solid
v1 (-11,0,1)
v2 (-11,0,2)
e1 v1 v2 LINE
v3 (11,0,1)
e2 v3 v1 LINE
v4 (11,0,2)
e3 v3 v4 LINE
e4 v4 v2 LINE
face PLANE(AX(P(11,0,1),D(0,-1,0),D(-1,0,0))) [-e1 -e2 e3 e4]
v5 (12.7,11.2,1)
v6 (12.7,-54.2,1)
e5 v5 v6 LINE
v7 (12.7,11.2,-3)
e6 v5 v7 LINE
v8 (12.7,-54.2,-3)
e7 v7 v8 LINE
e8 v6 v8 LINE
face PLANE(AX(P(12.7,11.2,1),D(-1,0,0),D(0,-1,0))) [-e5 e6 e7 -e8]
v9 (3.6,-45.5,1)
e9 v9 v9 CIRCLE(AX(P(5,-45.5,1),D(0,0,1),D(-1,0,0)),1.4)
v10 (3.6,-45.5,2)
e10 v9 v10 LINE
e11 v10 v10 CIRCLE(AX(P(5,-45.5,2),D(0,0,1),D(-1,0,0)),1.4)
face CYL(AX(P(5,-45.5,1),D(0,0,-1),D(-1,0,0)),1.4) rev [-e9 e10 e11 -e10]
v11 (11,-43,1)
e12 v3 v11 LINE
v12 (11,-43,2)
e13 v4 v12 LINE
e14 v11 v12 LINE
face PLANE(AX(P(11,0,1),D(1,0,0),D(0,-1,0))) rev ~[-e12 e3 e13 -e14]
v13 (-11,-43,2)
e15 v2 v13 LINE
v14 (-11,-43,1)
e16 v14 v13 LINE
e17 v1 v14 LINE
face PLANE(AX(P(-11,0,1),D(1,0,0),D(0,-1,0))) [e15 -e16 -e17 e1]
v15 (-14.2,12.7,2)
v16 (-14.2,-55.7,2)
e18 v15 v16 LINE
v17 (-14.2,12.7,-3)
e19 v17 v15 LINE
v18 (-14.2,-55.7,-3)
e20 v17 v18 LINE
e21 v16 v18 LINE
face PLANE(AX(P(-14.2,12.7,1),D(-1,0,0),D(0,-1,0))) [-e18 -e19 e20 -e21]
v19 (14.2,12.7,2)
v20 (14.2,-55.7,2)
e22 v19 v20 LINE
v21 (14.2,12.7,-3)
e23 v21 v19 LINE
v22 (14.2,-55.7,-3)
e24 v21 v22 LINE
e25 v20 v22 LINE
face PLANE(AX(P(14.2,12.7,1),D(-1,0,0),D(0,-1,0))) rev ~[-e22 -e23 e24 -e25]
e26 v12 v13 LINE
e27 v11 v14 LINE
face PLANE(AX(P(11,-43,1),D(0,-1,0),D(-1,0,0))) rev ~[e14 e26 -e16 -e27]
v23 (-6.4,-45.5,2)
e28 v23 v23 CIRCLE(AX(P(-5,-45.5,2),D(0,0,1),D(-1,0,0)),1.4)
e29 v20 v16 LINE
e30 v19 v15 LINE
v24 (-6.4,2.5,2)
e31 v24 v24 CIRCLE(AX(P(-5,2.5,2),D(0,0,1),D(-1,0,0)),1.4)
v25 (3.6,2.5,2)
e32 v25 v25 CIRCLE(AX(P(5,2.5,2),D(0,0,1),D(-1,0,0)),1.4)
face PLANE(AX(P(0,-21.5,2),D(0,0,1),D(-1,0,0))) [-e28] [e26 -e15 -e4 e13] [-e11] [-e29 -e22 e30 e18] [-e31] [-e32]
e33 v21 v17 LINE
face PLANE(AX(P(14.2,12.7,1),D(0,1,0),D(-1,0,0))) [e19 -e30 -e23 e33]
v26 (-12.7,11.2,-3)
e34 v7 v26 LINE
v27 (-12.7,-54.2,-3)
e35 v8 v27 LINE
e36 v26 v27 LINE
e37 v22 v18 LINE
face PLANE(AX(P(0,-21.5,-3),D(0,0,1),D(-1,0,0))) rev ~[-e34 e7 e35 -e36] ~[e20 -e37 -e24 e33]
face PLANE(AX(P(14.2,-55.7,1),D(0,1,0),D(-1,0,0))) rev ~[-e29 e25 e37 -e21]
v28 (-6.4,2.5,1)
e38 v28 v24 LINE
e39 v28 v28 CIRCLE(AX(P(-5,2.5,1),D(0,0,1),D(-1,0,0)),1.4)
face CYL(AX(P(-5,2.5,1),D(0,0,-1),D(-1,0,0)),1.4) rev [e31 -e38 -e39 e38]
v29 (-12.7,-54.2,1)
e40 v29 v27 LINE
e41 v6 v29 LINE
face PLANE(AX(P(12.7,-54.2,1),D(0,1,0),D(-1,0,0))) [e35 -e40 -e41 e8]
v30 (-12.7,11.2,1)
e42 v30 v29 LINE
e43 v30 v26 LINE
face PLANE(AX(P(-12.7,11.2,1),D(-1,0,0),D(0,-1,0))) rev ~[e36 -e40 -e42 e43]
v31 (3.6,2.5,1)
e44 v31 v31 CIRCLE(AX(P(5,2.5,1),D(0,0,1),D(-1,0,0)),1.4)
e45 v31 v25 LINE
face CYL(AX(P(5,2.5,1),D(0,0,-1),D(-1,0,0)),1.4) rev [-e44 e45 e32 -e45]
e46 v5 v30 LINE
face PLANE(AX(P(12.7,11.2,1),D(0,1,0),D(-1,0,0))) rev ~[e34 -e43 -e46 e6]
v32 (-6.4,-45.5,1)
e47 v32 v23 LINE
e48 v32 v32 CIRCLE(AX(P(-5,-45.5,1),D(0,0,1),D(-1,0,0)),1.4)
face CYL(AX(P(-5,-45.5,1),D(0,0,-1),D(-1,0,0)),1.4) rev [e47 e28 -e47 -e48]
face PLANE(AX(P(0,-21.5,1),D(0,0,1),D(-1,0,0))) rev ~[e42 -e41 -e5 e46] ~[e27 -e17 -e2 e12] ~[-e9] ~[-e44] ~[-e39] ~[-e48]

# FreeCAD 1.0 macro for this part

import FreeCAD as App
import Part
import Sketcher


def add_polygon(sketch, points):
    """Adds a closed chain of lines whose ends are joined by coincident constraints."""
    first, n = sketch.GeometryCount, len(points)
    for a, b in zip(points, points[1:] + points[:1]):
        sketch.addGeometry(Part.LineSegment(App.Vector(*a, 0), App.Vector(*b, 0)), False)
    for i in range(n):
        sketch.addConstraint(Sketcher.Constraint("Coincident", first + i, 2, first + (i + 1) % n, 1))

doc = App.newDocument("Part")
params = doc.addObject("Spreadsheet::Sheet", "Params")
for row, (alias, value) in enumerate([
    ("sketch1_diameter", "2.8 mm"),
    ("pad1_length", "10 mm"),
    ("sketch2_width", "28.4 mm"),
    ("sketch2_width2", "25.4 mm"),
    ("sketch2_height", "68.4 mm"),
    ("sketch2_height2", "65.4 mm"),
    ("pad2_length", "4 mm"),
    ("sketch3_diameter", "2.8 mm"),
    ("sketch3_width", "22 mm"),
    ("sketch3_height", "43 mm"),
    ("sketch3_width2", "28.4 mm"),
    ("sketch3_height2", "68.4 mm"),
    ("pad3_length", "1 mm"),
], start=1):
    params.set(f"A{row}", alias)
    params.set(f"B{row}", "=" + value)
    params.setAlias(f"B{row}", alias)

body = doc.addObject("PartDesign::Body", "Body")

# Sketch on XY plane
sketch1 = body.newObject("Sketcher::SketchObject", "Sketch")
sketch1.AttachmentSupport = (doc.getObject("XY_Plane"), [""])
sketch1.MapMode = "FlatFace"
sketch1.AttachmentOffset = App.Placement(App.Vector(0, 0, -5), App.Rotation())
sketch1.addGeometry(Part.Circle(App.Vector(-5, 2.5, 0), App.Vector(0, 0, 1), 1.4), False)
sketch1.addConstraint(Sketcher.Constraint("Diameter", 0, 2.8))
sketch1.addConstraint(Sketcher.Constraint("DistanceX", 0, 3, -1, 1, 5.0))
sketch1.addConstraint(Sketcher.Constraint("DistanceY", -1, 1, 0, 3, 2.5))
sketch1.setExpression("Constraints[0]", "Params.sketch1_diameter")
pad1 = body.newObject("PartDesign::Pad", "Pad")
pad1.Profile = sketch1
pad1.setExpression("Length", "Params.pad1_length")
body2 = doc.addObject("PartDesign::Body", "Body001")

# Sketch on XY plane
sketch2 = body2.newObject("Sketcher::SketchObject", "Sketch001")
sketch2.AttachmentSupport = (doc.getObject("XY_Plane001"), [""])
sketch2.MapMode = "FlatFace"
sketch2.AttachmentOffset = App.Placement(App.Vector(0, 0, 1), App.Rotation())
add_polygon(sketch2, [(-14, 13), (-14, -56), (14, -56), (14, 13)])  # lines 0-3
add_polygon(sketch2, [(13, -54), (-13, -54), (-13, 11), (13, 11)])  # lines 4-7
sketch2.addConstraint(Sketcher.Constraint("Vertical", 0))
sketch2.addConstraint(Sketcher.Constraint("Horizontal", 1))
sketch2.addConstraint(Sketcher.Constraint("Vertical", 2))
sketch2.addConstraint(Sketcher.Constraint("Horizontal", 3))
sketch2.addConstraint(Sketcher.Constraint("Horizontal", 4))
sketch2.addConstraint(Sketcher.Constraint("Vertical", 5))
sketch2.addConstraint(Sketcher.Constraint("Horizontal", 6))
sketch2.addConstraint(Sketcher.Constraint("Vertical", 7))
sketch2.addConstraint(Sketcher.Constraint("DistanceX", 1, 1, 1, 2, 28.4))
sketch2.addConstraint(Sketcher.Constraint("DistanceX", 4, 2, 4, 1, 25.4))
sketch2.addConstraint(Sketcher.Constraint("DistanceY", 0, 2, 0, 1, 68.4))
sketch2.addConstraint(Sketcher.Constraint("DistanceY", 5, 1, 5, 2, 65.4))
sketch2.addConstraint(Sketcher.Constraint("DistanceX", 0, 2, -1, 1, 14.2))
sketch2.addConstraint(Sketcher.Constraint("DistanceY", 0, 2, -1, 1, 55.7))
sketch2.addConstraint(Sketcher.Constraint("DistanceX", 4, 2, -1, 1, 12.7))
sketch2.addConstraint(Sketcher.Constraint("DistanceY", 4, 2, -1, 1, 54.2))
sketch2.setExpression("Constraints[16]", "Params.sketch2_width")
sketch2.setExpression("Constraints[17]", "Params.sketch2_width2")
sketch2.setExpression("Constraints[18]", "Params.sketch2_height")
sketch2.setExpression("Constraints[19]", "Params.sketch2_height2")
pad2 = body2.newObject("PartDesign::Pad", "Pad001")
pad2.Profile = sketch2
pad2.setExpression("Length", "Params.pad2_length")
pad2.Reversed = True
body3 = doc.addObject("PartDesign::Body", "Body002")

# Sketch on XY plane
sketch3 = body3.newObject("Sketcher::SketchObject", "Sketch002")
sketch3.AttachmentSupport = (doc.getObject("XY_Plane002"), [""])
sketch3.MapMode = "FlatFace"
sketch3.AttachmentOffset = App.Placement(App.Vector(0, 0, 1), App.Rotation())
add_polygon(sketch3, [(-14.2, 12.7), (-14.2, -55.7), (14.2, -55.7), (14.2, 12.7)])  # lines 0-3
sketch3.addGeometry(Part.Circle(App.Vector(-5, -45.5, 0), App.Vector(0, 0, 1), 1.4), False)  # 4
sketch3.addGeometry(Part.Circle(App.Vector(5, -45.5, 0), App.Vector(0, 0, 1), 1.4), False)  # 5
add_polygon(sketch3, [(11, -43), (-11, -43), (-11, 0), (11, 0)])  # lines 6-9
sketch3.addGeometry(Part.Circle(App.Vector(-5, 2.5, 0), App.Vector(0, 0, 1), 1.4), False)  # 10
sketch3.addGeometry(Part.Circle(App.Vector(5, 2.5, 0), App.Vector(0, 0, 1), 1.4), False)  # 11
sketch3.addConstraint(Sketcher.Constraint("Vertical", 0))
sketch3.addConstraint(Sketcher.Constraint("Horizontal", 1))
sketch3.addConstraint(Sketcher.Constraint("Vertical", 2))
sketch3.addConstraint(Sketcher.Constraint("Horizontal", 3))
sketch3.addConstraint(Sketcher.Constraint("Horizontal", 6))
sketch3.addConstraint(Sketcher.Constraint("Vertical", 7))
sketch3.addConstraint(Sketcher.Constraint("Horizontal", 8))
sketch3.addConstraint(Sketcher.Constraint("Vertical", 9))
sketch3.addConstraint(Sketcher.Constraint("Equal", 4, 5))
sketch3.addConstraint(Sketcher.Constraint("Equal", 5, 10))
sketch3.addConstraint(Sketcher.Constraint("Equal", 10, 11))
sketch3.addConstraint(Sketcher.Constraint("Symmetric", 7, 2, 8, 2, -1, 1))
sketch3.addConstraint(Sketcher.Constraint("Symmetric", 4, 3, 5, 3, -2))
sketch3.addConstraint(Sketcher.Constraint("Symmetric", 10, 3, 11, 3, -2))
sketch3.addConstraint(Sketcher.Constraint("Vertical", 4, 3, 10, 3))
sketch3.addConstraint(Sketcher.Constraint("Diameter", 4, 2.8))
sketch3.addConstraint(Sketcher.Constraint("DistanceX", 6, 2, 6, 1, 22.0))
sketch3.addConstraint(Sketcher.Constraint("DistanceY", 7, 1, 7, 2, 43.0))
sketch3.addConstraint(Sketcher.Constraint("DistanceX", 1, 1, 1, 2, 28.4))
sketch3.addConstraint(Sketcher.Constraint("DistanceY", 0, 2, 0, 1, 68.4))
sketch3.addConstraint(Sketcher.Constraint("DistanceX", 4, 3, -1, 1, 5.0))
sketch3.addConstraint(Sketcher.Constraint("DistanceY", 4, 3, 10, 3, 48.0))
sketch3.addConstraint(Sketcher.Constraint("DistanceY", 4, 3, -1, 1, 45.5))
sketch3.addConstraint(Sketcher.Constraint("DistanceX", 0, 2, -1, 1, 14.2))
sketch3.addConstraint(Sketcher.Constraint("DistanceY", 0, 2, -1, 1, 55.7))
sketch3.setExpression("Constraints[23]", "Params.sketch3_diameter")
sketch3.setExpression("Constraints[24]", "Params.sketch3_width")
sketch3.setExpression("Constraints[25]", "Params.sketch3_height")
sketch3.setExpression("Constraints[26]", "Params.sketch3_width2")
sketch3.setExpression("Constraints[27]", "Params.sketch3_height2")
pad3 = body3.newObject("PartDesign::Pad", "Pad002")
pad3.Profile = sketch3
pad3.setExpression("Length", "Params.pad3_length")
doc.recompute()

boolean = body3.newObject("PartDesign::Boolean", "Boolean")
boolean.Type = "Fuse"
boolean.addObjects([body2])
doc.recompute()

boolean2 = body3.newObject("PartDesign::Boolean", "Boolean001")
boolean2.Type = "Cut"
boolean2.addObjects([body])
body4 = doc.addObject("PartDesign::Body", "Body003")
doc.recompute()

mirroring = doc.addObject("Part::Mirroring", "Mirroring")
mirroring.Source = body3
mirroring.Base = App.Vector(0, -21.5, 0)
mirroring.Normal = App.Vector(0, 1, 0)
body4.BaseFeature = mirroring
doc.recompute()
body5 = doc.addObject("PartDesign::Body", "Body004")
doc.recompute()

mirroring2 = doc.addObject("Part::Mirroring", "Mirroring001")
mirroring2.Source = body4
mirroring2.Base = App.Vector(0, -21.5, 0)
mirroring2.Normal = App.Vector(1, 0, 0)
body5.BaseFeature = mirroring2
doc.recompute()
body3.Visibility = False
body4.Visibility = False
mirroring.Visibility = False
mirroring2.Visibility = False

doc.recompute()
